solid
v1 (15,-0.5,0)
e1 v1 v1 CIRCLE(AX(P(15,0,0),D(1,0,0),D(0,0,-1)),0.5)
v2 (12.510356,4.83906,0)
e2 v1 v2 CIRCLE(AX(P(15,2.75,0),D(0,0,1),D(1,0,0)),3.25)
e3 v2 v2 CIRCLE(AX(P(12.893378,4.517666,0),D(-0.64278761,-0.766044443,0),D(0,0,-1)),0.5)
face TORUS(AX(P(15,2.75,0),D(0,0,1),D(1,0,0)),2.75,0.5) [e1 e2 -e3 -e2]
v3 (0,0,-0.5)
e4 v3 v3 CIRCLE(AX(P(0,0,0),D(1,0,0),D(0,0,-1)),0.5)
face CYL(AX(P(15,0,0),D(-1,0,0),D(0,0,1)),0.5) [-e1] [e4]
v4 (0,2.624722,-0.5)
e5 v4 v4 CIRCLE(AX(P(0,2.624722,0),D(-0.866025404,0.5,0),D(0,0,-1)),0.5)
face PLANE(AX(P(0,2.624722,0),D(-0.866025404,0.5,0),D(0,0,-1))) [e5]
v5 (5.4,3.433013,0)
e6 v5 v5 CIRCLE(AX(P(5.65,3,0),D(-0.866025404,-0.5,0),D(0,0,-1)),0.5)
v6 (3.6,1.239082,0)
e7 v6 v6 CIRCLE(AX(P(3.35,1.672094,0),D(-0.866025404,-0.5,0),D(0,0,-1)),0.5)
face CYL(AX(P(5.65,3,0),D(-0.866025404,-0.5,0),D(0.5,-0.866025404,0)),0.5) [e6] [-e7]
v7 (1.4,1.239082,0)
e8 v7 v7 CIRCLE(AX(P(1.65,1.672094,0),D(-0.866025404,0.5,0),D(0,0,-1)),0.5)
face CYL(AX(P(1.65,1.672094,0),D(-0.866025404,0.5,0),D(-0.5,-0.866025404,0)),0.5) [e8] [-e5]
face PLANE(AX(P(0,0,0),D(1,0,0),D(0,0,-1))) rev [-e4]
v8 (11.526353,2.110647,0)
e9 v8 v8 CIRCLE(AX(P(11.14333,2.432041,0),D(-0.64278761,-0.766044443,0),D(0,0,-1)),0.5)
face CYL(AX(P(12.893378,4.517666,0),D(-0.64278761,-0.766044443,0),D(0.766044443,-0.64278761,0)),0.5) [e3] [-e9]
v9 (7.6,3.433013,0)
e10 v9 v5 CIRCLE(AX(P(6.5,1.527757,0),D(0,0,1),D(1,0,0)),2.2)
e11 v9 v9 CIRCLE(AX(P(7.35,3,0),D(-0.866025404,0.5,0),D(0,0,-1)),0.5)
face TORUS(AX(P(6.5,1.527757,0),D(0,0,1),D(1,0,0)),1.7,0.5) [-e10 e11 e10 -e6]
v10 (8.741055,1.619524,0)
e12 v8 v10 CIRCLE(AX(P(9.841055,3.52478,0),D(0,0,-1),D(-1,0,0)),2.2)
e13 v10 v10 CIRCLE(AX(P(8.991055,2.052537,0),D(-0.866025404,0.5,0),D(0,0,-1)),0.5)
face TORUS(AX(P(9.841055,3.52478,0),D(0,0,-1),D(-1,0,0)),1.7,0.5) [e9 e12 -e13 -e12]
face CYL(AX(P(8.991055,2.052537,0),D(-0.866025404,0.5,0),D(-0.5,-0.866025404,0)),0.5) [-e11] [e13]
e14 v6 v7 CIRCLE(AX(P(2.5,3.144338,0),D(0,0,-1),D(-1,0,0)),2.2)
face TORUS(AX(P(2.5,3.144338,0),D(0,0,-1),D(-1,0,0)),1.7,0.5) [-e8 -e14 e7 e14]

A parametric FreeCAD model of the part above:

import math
import FreeCAD as App
import Part
import Sketcher
from FreeCAD import Vector
Q = App.Units.Quantity

doc = App.newDocument("Part")
params = doc.addObject("Spreadsheet::Sheet", "Params")
for row, (alias, value) in enumerate([
    ("sketch1_diameter", "1 mm"),
    ("sketch2_radius", "1.7 mm"),
    ("sketch2_width", "15 mm"),
    ("sketch2_radius2", "2.75 mm"),
], start=1):
    params.set(f"A{row}", alias)
    params.set(f"B{row}", "=" + value)
    params.setAlias(f"B{row}", alias)

body = doc.addObject("PartDesign::Body", "Body")

# Sketch on YZ plane
sketch1 = body.newObject("Sketcher::SketchObject", "Sketch")
sketch1.AttachmentSupport = (doc.getObject("YZ_Plane"), [""])
sketch1.MapMode = "FlatFace"
sketch1.addGeometry(Part.Circle(Vector(0, 0, 0), Vector(0, 0, 1), 0.5), False)
sketch1.addConstraint([
    Sketcher.Constraint("Coincident", 0, 3, -1, 1),
    Sketcher.Constraint("Diameter", 0, 1.0),
])
sketch1.setExpression("Constraints[1]", "Params.sketch1_diameter")

# Sketch on XY plane
sketch2 = body.newObject("Sketcher::SketchObject", "Sketch001")
sketch2.AttachmentSupport = (doc.getObject("XY_Plane"), [""])
sketch2.MapMode = "FlatFace"
sketch2.addGeometry([
    Part.LineSegment(Vector(0, 0, 0), Vector(15, 0, 0)),  # 0
    Part.ArcOfCircle(Part.Circle(Vector(15, 2.8, 0), Vector(0, 0, 1), 2.8), math.radians(-90), math.radians(140)),  # 1
    Part.LineSegment(Vector(12.9, 4.5, 0), Vector(11.1, 2.4, 0)),  # 2
    Part.ArcOfCircle(Part.Circle(Vector(9.8, 3.5, 0), Vector(0, 0, 1), 1.7), math.radians(-120), math.radians(-40)),  # 3
    Part.LineSegment(Vector(9, 2.1, 0), Vector(7.3, 3, 0)),  # 4
    Part.ArcOfCircle(Part.Circle(Vector(6.5, 1.5, 0), Vector(0, 0, 1), 1.7), math.radians(60), math.radians(120)),  # 5
    Part.LineSegment(Vector(5.7, 3, 0), Vector(3.4, 1.7, 0)),  # 6
    Part.ArcOfCircle(Part.Circle(Vector(2.5, 3.1, 0), Vector(0, 0, 1), 1.7), math.radians(-120), math.radians(-60)),  # 7
    Part.LineSegment(Vector(1.6, 1.7, 0), Vector(0, 2.6, 0)),  # 8
], False)
sketch2.addConstraint([
    Sketcher.Constraint("Tangent", 0, 2, 1, 1),
    Sketcher.Constraint("Tangent", 1, 2, 2, 1),
    Sketcher.Constraint("Tangent", 2, 2, 3, 2),
    Sketcher.Constraint("Tangent", 3, 1, 4, 1),
    Sketcher.Constraint("Tangent", 4, 2, 5, 1),
    Sketcher.Constraint("Tangent", 5, 2, 6, 1),
    Sketcher.Constraint("Tangent", 6, 2, 7, 2),
    Sketcher.Constraint("Tangent", 7, 1, 8, 1),
    Sketcher.Constraint("Horizontal", 0),
    Sketcher.Constraint("Coincident", 0, 1, -1, 1),
    Sketcher.Constraint("Equal", 3, 5),
    Sketcher.Constraint("Equal", 5, 7),
    Sketcher.Constraint("PointOnObject", 8, 2, -2),
    Sketcher.Constraint("Parallel", 4, 8),
    Sketcher.Constraint("Horizontal", 4, 2, 5, 2),
    Sketcher.Constraint("Radius", 3, 1.7),
    Sketcher.Constraint("DistanceX", 0, 1, 0, 2, 15.0),
    Sketcher.Constraint("Angle", 2, Q("-130 deg")),
    Sketcher.Constraint("Angle", 4, Q("150 deg")),
    Sketcher.Constraint("Radius", 1, 2.75),
    Sketcher.Constraint("DistanceY", -1, 1, 4, 2, 3.0),
    Sketcher.Constraint("DistanceX", 7, 3, 5, 3, 4.0),
    Sketcher.Constraint("DistanceX", -1, 1, 5, 3, 6.5),
])
sketch2.setExpression("Constraints[15]", "Params.sketch2_radius")
sketch2.setExpression("Constraints[16]", "Params.sketch2_width")
sketch2.setExpression("Constraints[19]", "Params.sketch2_radius2")
doc.recompute()

additivepipe = body.newObject("PartDesign::AdditivePipe", "AdditivePipe")
additivepipe.Profile = sketch1
additivepipe.Spine = (sketch2, ["Edge1", "Edge2", "Edge3", "Edge4", "Edge5", "Edge6", "Edge7", "Edge8", "Edge9"])

doc.recompute()
